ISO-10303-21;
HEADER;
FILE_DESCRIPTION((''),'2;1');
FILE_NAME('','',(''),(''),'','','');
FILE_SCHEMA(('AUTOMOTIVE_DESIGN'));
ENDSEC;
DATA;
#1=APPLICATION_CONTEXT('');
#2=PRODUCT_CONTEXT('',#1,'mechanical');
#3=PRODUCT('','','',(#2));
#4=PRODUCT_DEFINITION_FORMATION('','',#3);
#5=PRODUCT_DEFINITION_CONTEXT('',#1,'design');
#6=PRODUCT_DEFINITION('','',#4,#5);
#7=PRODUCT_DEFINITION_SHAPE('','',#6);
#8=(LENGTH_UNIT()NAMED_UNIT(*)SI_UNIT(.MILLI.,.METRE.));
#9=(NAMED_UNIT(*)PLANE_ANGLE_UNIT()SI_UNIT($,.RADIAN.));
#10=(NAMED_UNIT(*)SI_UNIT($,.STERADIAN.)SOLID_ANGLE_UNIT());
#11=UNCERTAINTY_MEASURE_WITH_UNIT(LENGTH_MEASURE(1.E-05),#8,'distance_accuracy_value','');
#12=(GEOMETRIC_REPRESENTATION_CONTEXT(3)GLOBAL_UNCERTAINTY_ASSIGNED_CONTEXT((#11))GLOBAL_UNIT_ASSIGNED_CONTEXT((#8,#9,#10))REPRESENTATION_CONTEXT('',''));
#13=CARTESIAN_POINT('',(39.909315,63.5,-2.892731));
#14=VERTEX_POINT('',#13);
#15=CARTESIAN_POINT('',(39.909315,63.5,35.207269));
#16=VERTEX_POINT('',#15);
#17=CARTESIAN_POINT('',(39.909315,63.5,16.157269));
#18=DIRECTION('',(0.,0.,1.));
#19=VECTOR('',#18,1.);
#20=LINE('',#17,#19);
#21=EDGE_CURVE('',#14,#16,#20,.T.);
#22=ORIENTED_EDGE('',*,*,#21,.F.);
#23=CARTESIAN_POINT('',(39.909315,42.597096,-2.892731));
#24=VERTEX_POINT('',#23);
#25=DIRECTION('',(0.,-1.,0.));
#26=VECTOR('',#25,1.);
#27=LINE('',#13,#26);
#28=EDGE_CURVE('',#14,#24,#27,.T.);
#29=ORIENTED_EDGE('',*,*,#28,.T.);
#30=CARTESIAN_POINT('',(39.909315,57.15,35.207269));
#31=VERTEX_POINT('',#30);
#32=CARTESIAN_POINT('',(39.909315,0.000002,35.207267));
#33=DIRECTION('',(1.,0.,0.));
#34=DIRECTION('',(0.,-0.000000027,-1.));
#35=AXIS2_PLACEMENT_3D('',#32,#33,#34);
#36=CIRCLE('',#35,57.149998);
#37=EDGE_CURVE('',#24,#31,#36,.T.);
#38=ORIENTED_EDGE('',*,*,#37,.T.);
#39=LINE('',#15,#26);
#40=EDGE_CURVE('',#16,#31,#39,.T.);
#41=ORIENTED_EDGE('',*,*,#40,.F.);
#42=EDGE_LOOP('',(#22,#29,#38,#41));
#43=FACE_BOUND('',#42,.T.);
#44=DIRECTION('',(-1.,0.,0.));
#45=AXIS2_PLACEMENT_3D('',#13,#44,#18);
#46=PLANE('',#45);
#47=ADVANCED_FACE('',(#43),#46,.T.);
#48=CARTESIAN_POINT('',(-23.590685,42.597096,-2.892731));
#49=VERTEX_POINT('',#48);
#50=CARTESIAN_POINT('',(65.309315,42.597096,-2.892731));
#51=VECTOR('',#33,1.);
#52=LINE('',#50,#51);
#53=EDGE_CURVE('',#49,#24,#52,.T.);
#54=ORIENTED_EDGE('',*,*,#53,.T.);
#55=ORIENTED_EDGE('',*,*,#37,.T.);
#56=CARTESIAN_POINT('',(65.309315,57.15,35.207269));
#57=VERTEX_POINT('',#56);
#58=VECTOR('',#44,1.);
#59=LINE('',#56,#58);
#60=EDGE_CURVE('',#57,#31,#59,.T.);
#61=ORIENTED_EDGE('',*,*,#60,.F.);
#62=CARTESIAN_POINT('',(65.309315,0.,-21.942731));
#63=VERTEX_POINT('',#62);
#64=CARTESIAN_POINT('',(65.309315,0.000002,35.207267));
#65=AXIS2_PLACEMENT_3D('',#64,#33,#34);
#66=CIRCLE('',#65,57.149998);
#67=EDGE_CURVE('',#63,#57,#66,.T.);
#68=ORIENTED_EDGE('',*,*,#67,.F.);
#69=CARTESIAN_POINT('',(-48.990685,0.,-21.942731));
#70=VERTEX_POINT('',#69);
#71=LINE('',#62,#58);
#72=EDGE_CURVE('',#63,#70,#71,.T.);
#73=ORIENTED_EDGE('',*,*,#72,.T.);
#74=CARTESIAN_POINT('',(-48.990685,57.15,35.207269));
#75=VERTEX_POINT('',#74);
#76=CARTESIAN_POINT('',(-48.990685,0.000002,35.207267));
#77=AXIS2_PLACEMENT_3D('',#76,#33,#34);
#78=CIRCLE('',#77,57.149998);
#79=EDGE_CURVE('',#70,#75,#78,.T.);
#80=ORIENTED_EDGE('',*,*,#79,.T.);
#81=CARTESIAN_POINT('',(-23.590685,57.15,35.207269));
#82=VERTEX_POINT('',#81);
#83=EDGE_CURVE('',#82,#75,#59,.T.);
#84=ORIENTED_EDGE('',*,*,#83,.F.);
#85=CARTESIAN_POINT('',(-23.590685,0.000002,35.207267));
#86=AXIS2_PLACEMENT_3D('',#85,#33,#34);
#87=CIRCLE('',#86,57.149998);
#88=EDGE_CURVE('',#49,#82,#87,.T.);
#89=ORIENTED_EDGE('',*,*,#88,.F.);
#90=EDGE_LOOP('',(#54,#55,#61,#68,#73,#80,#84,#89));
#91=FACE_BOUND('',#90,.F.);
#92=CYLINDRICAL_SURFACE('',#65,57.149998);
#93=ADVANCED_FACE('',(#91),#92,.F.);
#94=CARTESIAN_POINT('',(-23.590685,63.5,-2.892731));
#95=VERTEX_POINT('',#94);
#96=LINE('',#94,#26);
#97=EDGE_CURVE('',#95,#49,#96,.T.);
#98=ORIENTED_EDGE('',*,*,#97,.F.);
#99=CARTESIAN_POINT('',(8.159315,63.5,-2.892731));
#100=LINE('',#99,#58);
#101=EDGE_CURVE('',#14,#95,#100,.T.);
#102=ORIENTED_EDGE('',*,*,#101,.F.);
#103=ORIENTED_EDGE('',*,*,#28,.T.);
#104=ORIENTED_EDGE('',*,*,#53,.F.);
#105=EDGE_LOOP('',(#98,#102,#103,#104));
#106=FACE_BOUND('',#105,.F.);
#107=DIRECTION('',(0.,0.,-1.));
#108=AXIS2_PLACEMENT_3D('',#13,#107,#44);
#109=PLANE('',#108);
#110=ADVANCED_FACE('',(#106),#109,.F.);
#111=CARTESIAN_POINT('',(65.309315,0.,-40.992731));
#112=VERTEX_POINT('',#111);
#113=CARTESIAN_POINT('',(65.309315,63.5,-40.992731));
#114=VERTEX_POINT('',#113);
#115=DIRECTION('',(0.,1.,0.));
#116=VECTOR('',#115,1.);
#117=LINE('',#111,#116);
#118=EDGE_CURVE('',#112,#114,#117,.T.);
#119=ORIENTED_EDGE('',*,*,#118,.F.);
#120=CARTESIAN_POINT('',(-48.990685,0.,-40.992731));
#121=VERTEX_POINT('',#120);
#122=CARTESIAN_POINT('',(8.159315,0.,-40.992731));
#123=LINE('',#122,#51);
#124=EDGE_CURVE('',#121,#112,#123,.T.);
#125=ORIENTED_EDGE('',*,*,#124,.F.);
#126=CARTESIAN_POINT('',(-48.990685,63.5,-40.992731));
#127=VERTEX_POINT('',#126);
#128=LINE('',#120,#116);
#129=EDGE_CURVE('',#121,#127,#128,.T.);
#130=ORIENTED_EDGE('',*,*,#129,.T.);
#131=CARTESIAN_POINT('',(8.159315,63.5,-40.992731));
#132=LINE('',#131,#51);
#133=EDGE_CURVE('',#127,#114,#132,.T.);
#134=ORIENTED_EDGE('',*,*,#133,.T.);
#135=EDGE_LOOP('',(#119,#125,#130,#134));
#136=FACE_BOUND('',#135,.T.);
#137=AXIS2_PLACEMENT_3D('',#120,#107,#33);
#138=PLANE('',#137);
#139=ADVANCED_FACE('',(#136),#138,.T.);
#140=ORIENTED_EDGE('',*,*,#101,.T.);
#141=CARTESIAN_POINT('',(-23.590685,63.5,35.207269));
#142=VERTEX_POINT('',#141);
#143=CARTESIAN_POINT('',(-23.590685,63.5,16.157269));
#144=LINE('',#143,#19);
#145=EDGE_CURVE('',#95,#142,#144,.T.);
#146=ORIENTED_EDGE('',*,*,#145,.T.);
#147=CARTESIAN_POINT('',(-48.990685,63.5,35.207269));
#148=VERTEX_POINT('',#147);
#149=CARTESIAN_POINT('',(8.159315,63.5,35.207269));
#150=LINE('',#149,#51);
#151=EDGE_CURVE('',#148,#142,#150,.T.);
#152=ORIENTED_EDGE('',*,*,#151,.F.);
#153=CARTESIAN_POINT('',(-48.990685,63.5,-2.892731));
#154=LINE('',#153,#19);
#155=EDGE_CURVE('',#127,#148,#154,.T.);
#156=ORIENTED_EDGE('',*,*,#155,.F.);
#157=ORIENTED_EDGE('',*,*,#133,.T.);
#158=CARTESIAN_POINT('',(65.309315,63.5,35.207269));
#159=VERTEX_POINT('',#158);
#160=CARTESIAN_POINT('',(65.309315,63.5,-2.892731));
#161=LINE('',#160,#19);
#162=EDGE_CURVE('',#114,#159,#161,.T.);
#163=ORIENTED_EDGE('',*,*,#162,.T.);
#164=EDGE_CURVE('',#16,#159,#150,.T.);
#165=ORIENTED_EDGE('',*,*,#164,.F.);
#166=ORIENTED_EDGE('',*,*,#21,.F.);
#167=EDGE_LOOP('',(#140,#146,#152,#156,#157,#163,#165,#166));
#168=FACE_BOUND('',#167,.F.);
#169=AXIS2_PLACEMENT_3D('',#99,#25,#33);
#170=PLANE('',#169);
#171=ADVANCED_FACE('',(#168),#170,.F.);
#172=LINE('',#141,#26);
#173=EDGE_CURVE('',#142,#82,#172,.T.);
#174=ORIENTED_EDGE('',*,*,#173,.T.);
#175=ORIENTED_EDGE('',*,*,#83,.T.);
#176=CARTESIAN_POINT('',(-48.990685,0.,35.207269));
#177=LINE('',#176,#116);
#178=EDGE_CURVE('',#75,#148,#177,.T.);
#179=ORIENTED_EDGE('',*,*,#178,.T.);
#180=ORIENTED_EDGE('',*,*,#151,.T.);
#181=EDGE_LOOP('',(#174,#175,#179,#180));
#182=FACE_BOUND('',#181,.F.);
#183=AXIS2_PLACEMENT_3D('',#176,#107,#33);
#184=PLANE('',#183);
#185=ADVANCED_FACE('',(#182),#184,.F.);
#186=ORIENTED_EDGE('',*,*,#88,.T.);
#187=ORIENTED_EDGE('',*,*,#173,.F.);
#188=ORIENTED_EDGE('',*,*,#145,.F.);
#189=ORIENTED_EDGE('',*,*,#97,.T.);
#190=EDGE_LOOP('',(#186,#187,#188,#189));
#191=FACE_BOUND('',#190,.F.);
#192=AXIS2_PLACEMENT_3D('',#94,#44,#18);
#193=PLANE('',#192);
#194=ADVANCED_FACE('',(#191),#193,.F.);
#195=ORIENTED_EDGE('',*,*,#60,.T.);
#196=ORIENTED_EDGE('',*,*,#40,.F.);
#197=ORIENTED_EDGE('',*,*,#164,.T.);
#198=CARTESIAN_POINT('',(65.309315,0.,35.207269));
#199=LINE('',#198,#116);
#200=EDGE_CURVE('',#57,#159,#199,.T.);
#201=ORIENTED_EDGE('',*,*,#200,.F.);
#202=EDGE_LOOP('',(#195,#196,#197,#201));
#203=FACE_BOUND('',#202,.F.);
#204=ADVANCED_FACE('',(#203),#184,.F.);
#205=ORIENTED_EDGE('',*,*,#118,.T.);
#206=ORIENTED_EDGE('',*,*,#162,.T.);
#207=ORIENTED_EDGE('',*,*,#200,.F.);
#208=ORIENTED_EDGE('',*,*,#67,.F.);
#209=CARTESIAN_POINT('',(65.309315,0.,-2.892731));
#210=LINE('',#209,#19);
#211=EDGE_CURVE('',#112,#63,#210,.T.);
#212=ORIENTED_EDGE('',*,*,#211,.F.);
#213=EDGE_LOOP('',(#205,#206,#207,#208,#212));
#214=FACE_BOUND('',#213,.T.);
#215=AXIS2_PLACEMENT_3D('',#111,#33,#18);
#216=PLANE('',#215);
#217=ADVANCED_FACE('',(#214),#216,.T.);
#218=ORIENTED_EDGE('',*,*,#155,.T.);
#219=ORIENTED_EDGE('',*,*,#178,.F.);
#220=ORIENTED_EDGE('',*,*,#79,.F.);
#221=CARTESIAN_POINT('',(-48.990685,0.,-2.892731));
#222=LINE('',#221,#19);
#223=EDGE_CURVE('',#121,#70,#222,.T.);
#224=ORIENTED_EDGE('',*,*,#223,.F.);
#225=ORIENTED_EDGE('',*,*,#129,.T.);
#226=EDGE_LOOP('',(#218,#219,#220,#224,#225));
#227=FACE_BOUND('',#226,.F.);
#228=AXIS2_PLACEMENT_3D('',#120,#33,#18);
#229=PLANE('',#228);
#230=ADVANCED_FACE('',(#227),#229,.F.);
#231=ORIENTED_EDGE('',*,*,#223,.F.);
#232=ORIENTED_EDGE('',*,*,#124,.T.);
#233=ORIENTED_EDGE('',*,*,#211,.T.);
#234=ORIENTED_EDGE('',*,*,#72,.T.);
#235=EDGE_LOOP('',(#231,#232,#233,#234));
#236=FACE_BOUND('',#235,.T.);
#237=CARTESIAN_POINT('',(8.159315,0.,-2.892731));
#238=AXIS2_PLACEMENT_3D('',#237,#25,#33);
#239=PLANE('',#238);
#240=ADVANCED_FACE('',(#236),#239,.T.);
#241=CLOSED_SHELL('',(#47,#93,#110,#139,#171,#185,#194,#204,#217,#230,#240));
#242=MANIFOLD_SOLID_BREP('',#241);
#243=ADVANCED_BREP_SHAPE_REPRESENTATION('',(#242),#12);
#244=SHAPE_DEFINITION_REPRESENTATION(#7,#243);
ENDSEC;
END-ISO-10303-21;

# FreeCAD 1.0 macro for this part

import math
import FreeCAD as App
import Part
import Sketcher

V = App.Vector
Q = App.Units.Quantity


def add_polygon(sketch, points):
    """Adds a closed chain of lines whose ends are joined by coincident constraints."""
    first, n = sketch.GeometryCount, len(points)
    for a, b in zip(points, points[1:] + points[:1]):
        sketch.addGeometry(Part.LineSegment(App.Vector(*a, 0), App.Vector(*b, 0)), False)
    for i in range(n):
        sketch.addConstraint(Sketcher.Constraint("Coincident", first + i, 2, first + (i + 1) % n, 1))

doc = App.newDocument("Part")
body = doc.addObject("PartDesign::Body", "Body")

# Sketch on XZ plane
sketch1 = doc.addObject("Sketcher::SketchObject", "Sketch")
body.addObject(sketch1)
sketch1.AttachmentSupport = (doc.XZ_Plane, [""])
sketch1.MapMode = "FlatFace"
add_polygon(sketch1, [(-49, 35), (-49, -41), (65, -41), (65, 35)])  # lines 0-3
sketch1.addConstraint(Sketcher.Constraint("Vertical", 0))
sketch1.addConstraint(Sketcher.Constraint("Horizontal", 1))
sketch1.addConstraint(Sketcher.Constraint("Vertical", 2))
sketch1.addConstraint(Sketcher.Constraint("Horizontal", 3))
sketch1.addConstraint(Sketcher.Constraint("DistanceY", 0, 2, 0, 1, Q("3 in")))
sketch1.addConstraint(Sketcher.Constraint("DistanceX", 1, 1, 1, 2, Q("4.5 in")))
sketch1.addConstraint(Sketcher.Constraint("DistanceY", 0, 2, -1, 1, 40.992731))
sketch1.addConstraint(Sketcher.Constraint("DistanceX", 0, 2, -1, 1, 48.990685))
pad1 = doc.addObject("PartDesign::Pad", "Pad")
body.addObject(pad1)
pad1.Profile = sketch1
pad1.Length = Q("2.5 in")
pad1.Reversed = True

# Sketch on YZ plane
sketch2 = doc.addObject("Sketcher::SketchObject", "Sketch001")
body.addObject(sketch2)
sketch2.AttachmentSupport = (doc.YZ_Plane, [""])
sketch2.MapMode = "FlatFace"
sketch2.AttachmentOffset = App.Placement(V(0, 0, 65.309315), App.Rotation())
sketch2.addGeometry(Part.LineSegment(V(0, 35, 0), V(0, -22, 0)), False)
sketch2.addGeometry(Part.ArcOfCircle(Part.Circle(V(0, 35, 0), V(0, 0, 1), 57), math.radians(-90), math.radians(0)), False)
sketch2.addGeometry(Part.LineSegment(V(57, 35, 0), V(0, 35, 0)), False)
sketch2.addConstraint(Sketcher.Constraint("Coincident", 0, 2, 1, 1))
sketch2.addConstraint(Sketcher.Constraint("Coincident", 1, 2, 2, 1))
sketch2.addConstraint(Sketcher.Constraint("Coincident", 2, 2, 0, 1))
sketch2.addConstraint(Sketcher.Constraint("Vertical", 0))
sketch2.addConstraint(Sketcher.Constraint("Horizontal", 2))
sketch2.addConstraint(Sketcher.Constraint("Coincident", 2, 2, 1, 3))
sketch2.addConstraint(Sketcher.Constraint("PointOnObject", 1, 3, -2))
sketch2.addConstraint(Sketcher.Constraint("Radius", 1, Q("2.2499999 in")))
sketch2.addConstraint(Sketcher.Constraint("DistanceY", 0, 2, -1, 1, 21.942731))
pocket1 = doc.addObject("PartDesign::Pocket", "Pocket")
body.addObject(pocket1)
pocket1.Profile = sketch2
pocket1.Type = "ThroughAll"

# Sketch on XZ plane
sketch3 = doc.addObject("Sketcher::SketchObject", "Sketch002")
body.addObject(sketch3)
sketch3.AttachmentSupport = (doc.XZ_Plane, [""])
sketch3.MapMode = "FlatFace"
sketch3.AttachmentOffset = App.Placement(V(0, 0, -2.5 * 25.4), App.Rotation())
add_polygon(sketch3, [(40, 35), (40, -3), (-24, -3), (-24, 35)])  # lines 0-3
sketch3.addConstraint(Sketcher.Constraint("Vertical", 0))
sketch3.addConstraint(Sketcher.Constraint("Horizontal", 1))
sketch3.addConstraint(Sketcher.Constraint("Vertical", 2))
sketch3.addConstraint(Sketcher.Constraint("Horizontal", 3))
sketch3.addConstraint(Sketcher.Constraint("DistanceX", 1, 2, 1, 1, Q("2.5 in")))
sketch3.addConstraint(Sketcher.Constraint("DistanceY", 0, 2, 0, 1, Q("1.5 in")))
sketch3.addConstraint(Sketcher.Constraint("DistanceY", 0, 2, -1, 1, 2.892731))
sketch3.addConstraint(Sketcher.Constraint("DistanceX", -1, 1, 0, 2, 39.909315))
pocket2 = doc.addObject("PartDesign::Pocket", "Pocket001")
body.addObject(pocket2)
pocket2.Profile = sketch3
pocket2.Type = "ThroughAll"
pocket2.Reversed = True

doc.recompute()
